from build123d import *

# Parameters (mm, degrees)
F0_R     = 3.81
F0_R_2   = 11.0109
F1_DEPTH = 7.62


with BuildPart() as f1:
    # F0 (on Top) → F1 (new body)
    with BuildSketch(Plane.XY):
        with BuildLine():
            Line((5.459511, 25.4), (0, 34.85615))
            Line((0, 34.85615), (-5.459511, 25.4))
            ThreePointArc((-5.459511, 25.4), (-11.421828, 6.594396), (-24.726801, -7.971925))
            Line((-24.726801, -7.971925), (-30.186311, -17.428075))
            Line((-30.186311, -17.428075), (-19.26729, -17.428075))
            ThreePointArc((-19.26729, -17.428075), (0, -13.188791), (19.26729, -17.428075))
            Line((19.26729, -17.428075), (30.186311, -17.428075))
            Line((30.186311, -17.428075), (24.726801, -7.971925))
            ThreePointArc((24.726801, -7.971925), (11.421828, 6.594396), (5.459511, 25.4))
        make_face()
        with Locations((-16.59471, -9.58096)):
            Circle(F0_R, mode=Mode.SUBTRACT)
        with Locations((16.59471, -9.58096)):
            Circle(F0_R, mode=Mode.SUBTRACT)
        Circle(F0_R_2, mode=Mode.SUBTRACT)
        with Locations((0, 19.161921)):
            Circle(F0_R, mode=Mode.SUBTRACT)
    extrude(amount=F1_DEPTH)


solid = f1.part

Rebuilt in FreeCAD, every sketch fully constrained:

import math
import FreeCAD as App
import Part
import Sketcher
from FreeCAD import Vector
Q = App.Units.Quantity

doc = App.newDocument("Part")
body = doc.addObject("PartDesign::Body", "Body")

sketch1 = body.newObject("Sketcher::SketchObject", "Sketch")
sketch1.AttachmentSupport = (doc.getObject("XY_Plane"), [""])
sketch1.MapMode = "FlatFace"
sketch1.addGeometry([
    Part.LineSegment(Vector(5.5, 25.4, 0), Vector(0, 34.9, 0)),
    Part.LineSegment(Vector(0, 34.9, 0), Vector(-5.5, 25.4, 0)),
    Part.ArcOfCircle(Part.Circle(Vector(-51.2, 29.5, 0), Vector(0, 0, 1), 45.9), math.radians(-55), math.radians(-5)),
    Part.LineSegment(Vector(-24.7, -8, 0), Vector(-30.2, -17.4, 0)),
    Part.LineSegment(Vector(-30.2, -17.4, 0), Vector(-19.3, -17.4, 0)),
    Part.ArcOfCircle(Part.Circle(Vector(0, -59.1, 0), Vector(0, 0, 1), 45.9), math.radians(65), math.radians(115)),
    Part.LineSegment(Vector(19.3, -17.4, 0), Vector(30.2, -17.4, 0)),
    Part.LineSegment(Vector(30.2, -17.4, 0), Vector(24.7, -8, 0)),
    Part.ArcOfCircle(Part.Circle(Vector(51.2, 29.5, 0), Vector(0, 0, 1), 45.9), math.radians(-175), math.radians(-125)),
    Part.Circle(Vector(-16.6, -9.6, 0), Vector(0, 0, 1), 3.8),
    Part.Circle(Vector(16.6, -9.6, 0), Vector(0, 0, 1), 3.8),
    Part.Circle(Vector(0, 0, 0), Vector(0, 0, 1), 11),
    Part.Circle(Vector(0, 19.2, 0), Vector(0, 0, 1), 3.8),
], False)
sketch1.addConstraint([
    Sketcher.Constraint("Coincident", 0, 2, 1, 1),
    Sketcher.Constraint("Coincident", 1, 2, 2, 2),
    Sketcher.Constraint("Coincident", 2, 1, 3, 1),
    Sketcher.Constraint("Coincident", 3, 2, 4, 1),
    Sketcher.Constraint("Coincident", 4, 2, 5, 2),
    Sketcher.Constraint("Coincident", 5, 1, 6, 1),
    Sketcher.Constraint("Coincident", 6, 2, 7, 1),
    Sketcher.Constraint("Coincident", 7, 2, 8, 2),
    Sketcher.Constraint("Coincident", 8, 1, 0, 1),
    Sketcher.Constraint("Horizontal", 4),
    Sketcher.Constraint("Horizontal", 6),
    Sketcher.Constraint("Coincident", 11, 3, -1, 1),
    Sketcher.Constraint("Equal", 2, 5),
    Sketcher.Constraint("Equal", 5, 8),
    Sketcher.Constraint("Equal", 9, 10),
    Sketcher.Constraint("Equal", 10, 12),
    Sketcher.Constraint("Symmetric", 2, 3, 8, 3, -2),
    Sketcher.Constraint("Symmetric", 9, 3, 10, 3, -2),
    Sketcher.Constraint("Symmetric", 4, 2, 5, 1, -2),
    Sketcher.Constraint("PointOnObject", 12, 3, -2),
    Sketcher.Constraint("PointOnObject", 0, 2, -2),
    Sketcher.Constraint("Parallel", 1, 3),
    Sketcher.Constraint("Parallel", 0, 7),
    Sketcher.Constraint("Horizontal", 2, 1, 7, 2),
    Sketcher.Constraint("Horizontal", 1, 2, 8, 1),
    Sketcher.Constraint("Equal", 1, 3),
    Sketcher.Constraint("Diameter", 9, Q("0.3 in")),
    Sketcher.Constraint("Diameter", 11, Q("0.867 in")),
    Sketcher.Constraint("DistanceY", -1, 1, 1, 2, Q("1 in")),
    Sketcher.Constraint("Angle", 0, Q("120.000001 deg")),
    Sketcher.Constraint("Radius", 2, Q("45.903976 mm")),
    Sketcher.Constraint("DistanceX", 4, 1, 4, 2, Q("10.919021 mm")),
    Sketcher.Constraint("DistanceX", 2, 1, -1, 1, Q("24.726801 mm")),
    Sketcher.Constraint("DistanceX", 9, 3, 1, 2, Q("11.135199 mm")),
    Sketcher.Constraint("DistanceX", 4, 2, 10, 3, Q("35.862 mm")),
    Sketcher.Constraint("DistanceY", 5, 3, -1, 1, Q("59.092768 mm")),
    Sketcher.Constraint("DistanceY", 9, 3, -1, 1, Q("9.58096 mm")),
    Sketcher.Constraint("DistanceY", -1, 1, 12, 3, Q("19.161921 mm")),
])
pad1 = body.newObject("PartDesign::Pad", "Pad")
pad1.Profile = sketch1
pad1.Length = Q("0.3 in")

doc.recompute()
